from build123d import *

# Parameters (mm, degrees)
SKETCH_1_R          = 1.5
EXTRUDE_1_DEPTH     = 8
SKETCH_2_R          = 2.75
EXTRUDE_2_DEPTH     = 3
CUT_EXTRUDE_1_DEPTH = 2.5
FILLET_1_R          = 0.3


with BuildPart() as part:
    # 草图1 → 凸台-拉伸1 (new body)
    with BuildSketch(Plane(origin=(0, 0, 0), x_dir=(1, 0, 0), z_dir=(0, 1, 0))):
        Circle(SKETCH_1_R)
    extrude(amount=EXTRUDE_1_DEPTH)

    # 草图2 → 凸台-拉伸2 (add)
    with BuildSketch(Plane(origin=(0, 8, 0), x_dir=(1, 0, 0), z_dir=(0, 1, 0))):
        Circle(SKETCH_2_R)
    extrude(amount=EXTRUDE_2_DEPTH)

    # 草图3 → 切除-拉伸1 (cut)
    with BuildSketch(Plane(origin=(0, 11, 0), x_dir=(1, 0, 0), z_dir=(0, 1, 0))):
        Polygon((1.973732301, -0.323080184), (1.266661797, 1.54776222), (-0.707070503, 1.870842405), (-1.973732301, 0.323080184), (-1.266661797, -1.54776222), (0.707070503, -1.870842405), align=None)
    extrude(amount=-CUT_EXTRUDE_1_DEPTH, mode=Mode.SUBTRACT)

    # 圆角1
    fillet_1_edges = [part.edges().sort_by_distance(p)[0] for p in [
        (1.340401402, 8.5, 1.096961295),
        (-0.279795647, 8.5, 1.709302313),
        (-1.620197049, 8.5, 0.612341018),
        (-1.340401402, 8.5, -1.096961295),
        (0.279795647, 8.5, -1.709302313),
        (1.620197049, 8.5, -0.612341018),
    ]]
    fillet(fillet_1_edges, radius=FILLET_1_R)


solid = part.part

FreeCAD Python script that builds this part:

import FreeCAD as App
import Part
import Sketcher
from FreeCAD import Vector


def edges_at(feature, points):
    """Names of the edges that pass closest to the given points."""
    edges = feature.Shape.Edges
    near = lambda p: min(range(len(edges)), key=lambda i: edges[i].distToShape(Part.Vertex(*p))[0])
    return sorted({f"Edge{near(p) + 1}" for p in points})

doc = App.newDocument("Part")
body = doc.addObject("PartDesign::Body", "Body")

# Sketch on XZ plane
sketch1 = doc.addObject("Sketcher::SketchObject", "Sketch")
body.addObject(sketch1)
sketch1.AttachmentSupport = (doc.XZ_Plane, [""])
sketch1.MapMode = "FlatFace"
sketch1.addGeometry(Part.Circle(Vector(0, 0, 0), Vector(0, 0, 1), 1.5), False)
sketch1.addConstraint([
    Sketcher.Constraint("Coincident", 0, 3, -1, 1),
    Sketcher.Constraint("Diameter", 0, 3.0),
])
pad1 = doc.addObject("PartDesign::Pad", "Pad")
body.addObject(pad1)
pad1.Profile = sketch1
pad1.Length = 8
pad1.Reversed = True

# Sketch on XZ plane
sketch2 = doc.addObject("Sketcher::SketchObject", "Sketch001")
body.addObject(sketch2)
sketch2.AttachmentSupport = (doc.XZ_Plane, [""])
sketch2.MapMode = "FlatFace"
sketch2.AttachmentOffset = App.Placement(Vector(0, 0, -8), App.Rotation())
sketch2.addGeometry(Part.Circle(Vector(0, 0, 0), Vector(0, 0, 1), 2.8), False)
sketch2.addConstraint([
    Sketcher.Constraint("Coincident", 0, 3, -1, 1),
    Sketcher.Constraint("Diameter", 0, 5.5),
])
pad2 = doc.addObject("PartDesign::Pad", "Pad001")
body.addObject(pad2)
pad2.Profile = sketch2
pad2.Length = 3
pad2.Reversed = True

# Sketch on XZ plane
sketch3 = doc.addObject("Sketcher::SketchObject", "Sketch002")
body.addObject(sketch3)
sketch3.AttachmentSupport = (doc.XZ_Plane, [""])
sketch3.MapMode = "FlatFace"
sketch3.AttachmentOffset = App.Placement(Vector(0, 0, -11), App.Rotation())
sketch3.addGeometry([
    Part.LineSegment(Vector(2, 0.3, 0), Vector(1.3, -1.5, 0)),  # 0
    Part.LineSegment(Vector(1.3, -1.5, 0), Vector(-0.7, -1.9, 0)),  # 1
    Part.LineSegment(Vector(-0.7, -1.9, 0), Vector(-2, -0.3, 0)),  # 2
    Part.LineSegment(Vector(-2, -0.3, 0), Vector(-1.3, 1.5, 0)),  # 3
    Part.LineSegment(Vector(-1.3, 1.5, 0), Vector(0.7, 1.9, 0)),  # 4
    Part.LineSegment(Vector(0.7, 1.9, 0), Vector(2, 0.3, 0)),  # 5
], False)
sketch3.addConstraint([
    Sketcher.Constraint("Coincident", 0, 2, 1, 1),
    Sketcher.Constraint("Coincident", 1, 2, 2, 1),
    Sketcher.Constraint("Coincident", 2, 2, 3, 1),
    Sketcher.Constraint("Coincident", 3, 2, 4, 1),
    Sketcher.Constraint("Coincident", 4, 2, 5, 1),
    Sketcher.Constraint("Coincident", 5, 2, 0, 1),
    Sketcher.Constraint("Symmetric", 0, 2, 3, 2, -1, 1),
    Sketcher.Constraint("Symmetric", 1, 2, 4, 2, -1, 1),
    Sketcher.Constraint("Symmetric", 2, 2, 5, 2, -1, 1),
    Sketcher.Constraint("Equal", 0, 1),
    Sketcher.Constraint("Equal", 1, 2),
    Sketcher.Constraint("Distance", 0, 2.0),
    Sketcher.Constraint("DistanceX", -1, 1, 0, 2, 1.266662),
    Sketcher.Constraint("DistanceX", 1, 2, -1, 1, 0.707071),
    Sketcher.Constraint("DistanceY", 2, 2, -1, 1, 0.32308),
])
pocket1 = doc.addObject("PartDesign::Pocket", "Pocket")
body.addObject(pocket1)
pocket1.Profile = sketch3
pocket1.Length = 2.5
pocket1.Reversed = True
doc.recompute()

fillet = doc.addObject("PartDesign::Fillet", "Fillet")
body.addObject(fillet)
fillet.Base = (pocket1, edges_at(pocket1, [
    (1.34, 8.5, 1.097),
    (-0.28, 8.5, 1.709),
    (-1.62, 8.5, 0.612),
    (-1.34, 8.5, -1.097),
    (0.28, 8.5, -1.709),
    (1.62, 8.5, -0.612),
]))
fillet.Radius = 0.3

doc.recompute()
